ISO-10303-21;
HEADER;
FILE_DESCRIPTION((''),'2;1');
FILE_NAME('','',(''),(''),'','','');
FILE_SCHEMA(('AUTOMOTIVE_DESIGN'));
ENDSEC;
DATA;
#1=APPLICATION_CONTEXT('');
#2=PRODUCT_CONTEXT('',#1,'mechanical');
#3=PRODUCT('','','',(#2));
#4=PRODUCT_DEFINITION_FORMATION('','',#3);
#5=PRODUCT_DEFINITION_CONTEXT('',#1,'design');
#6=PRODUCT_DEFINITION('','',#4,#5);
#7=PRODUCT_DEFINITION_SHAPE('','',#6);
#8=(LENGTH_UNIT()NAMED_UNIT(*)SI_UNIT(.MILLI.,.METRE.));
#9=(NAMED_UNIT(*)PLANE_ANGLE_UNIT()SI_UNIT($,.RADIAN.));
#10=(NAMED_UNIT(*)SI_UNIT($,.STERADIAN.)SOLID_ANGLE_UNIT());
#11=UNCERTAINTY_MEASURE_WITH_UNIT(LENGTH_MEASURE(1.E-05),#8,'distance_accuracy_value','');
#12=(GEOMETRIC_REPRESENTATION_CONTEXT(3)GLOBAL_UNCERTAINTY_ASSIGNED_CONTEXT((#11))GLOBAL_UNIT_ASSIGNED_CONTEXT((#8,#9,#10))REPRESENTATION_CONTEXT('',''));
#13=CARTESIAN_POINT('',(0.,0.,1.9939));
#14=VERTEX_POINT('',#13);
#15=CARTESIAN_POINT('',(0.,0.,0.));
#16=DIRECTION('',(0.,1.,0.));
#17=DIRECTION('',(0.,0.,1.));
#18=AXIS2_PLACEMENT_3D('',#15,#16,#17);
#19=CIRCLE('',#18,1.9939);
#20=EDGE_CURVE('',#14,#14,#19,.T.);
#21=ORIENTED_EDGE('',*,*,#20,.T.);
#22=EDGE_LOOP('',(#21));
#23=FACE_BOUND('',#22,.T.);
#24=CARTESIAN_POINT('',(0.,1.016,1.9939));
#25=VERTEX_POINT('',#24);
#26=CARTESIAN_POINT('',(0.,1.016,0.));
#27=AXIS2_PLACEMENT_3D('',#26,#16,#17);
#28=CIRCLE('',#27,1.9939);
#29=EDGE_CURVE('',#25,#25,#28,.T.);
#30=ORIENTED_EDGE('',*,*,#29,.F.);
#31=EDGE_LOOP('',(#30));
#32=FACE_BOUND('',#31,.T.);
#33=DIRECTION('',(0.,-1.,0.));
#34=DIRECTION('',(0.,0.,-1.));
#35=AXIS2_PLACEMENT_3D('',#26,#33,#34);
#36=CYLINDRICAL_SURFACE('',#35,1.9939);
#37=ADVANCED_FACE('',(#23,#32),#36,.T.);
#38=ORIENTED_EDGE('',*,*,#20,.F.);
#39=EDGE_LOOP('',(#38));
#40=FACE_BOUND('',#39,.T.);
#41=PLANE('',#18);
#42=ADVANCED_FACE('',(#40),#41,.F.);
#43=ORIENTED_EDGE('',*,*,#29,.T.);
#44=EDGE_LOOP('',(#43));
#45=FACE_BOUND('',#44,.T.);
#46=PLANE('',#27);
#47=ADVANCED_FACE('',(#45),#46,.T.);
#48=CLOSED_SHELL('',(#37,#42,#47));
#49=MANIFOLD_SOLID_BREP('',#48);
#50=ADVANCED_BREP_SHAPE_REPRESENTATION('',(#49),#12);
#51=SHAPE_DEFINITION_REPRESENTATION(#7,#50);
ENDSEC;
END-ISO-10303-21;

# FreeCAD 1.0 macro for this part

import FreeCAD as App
import Part
import Sketcher

V = App.Vector
Q = App.Units.Quantity

doc = App.newDocument("Part")
body = doc.addObject("PartDesign::Body", "Body")

# Sketch on XZ plane
sketch1 = doc.addObject("Sketcher::SketchObject", "Sketch")
body.addObject(sketch1)
sketch1.AttachmentSupport = (doc.XZ_Plane, [""])
sketch1.MapMode = "FlatFace"
sketch1.addGeometry(Part.Circle(V(0, 0, 0), V(0, 0, 1), 1.9939), False)
sketch1.addConstraint(Sketcher.Constraint("Coincident", 0, 3, -1, 1))
sketch1.addConstraint(Sketcher.Constraint("Diameter", 0, Q("0.157 in")))
pad1 = doc.addObject("PartDesign::Pad", "Pad")
body.addObject(pad1)
pad1.Profile = sketch1
pad1.Length = Q("0.04 in")
pad1.Reversed = True

doc.recompute()
